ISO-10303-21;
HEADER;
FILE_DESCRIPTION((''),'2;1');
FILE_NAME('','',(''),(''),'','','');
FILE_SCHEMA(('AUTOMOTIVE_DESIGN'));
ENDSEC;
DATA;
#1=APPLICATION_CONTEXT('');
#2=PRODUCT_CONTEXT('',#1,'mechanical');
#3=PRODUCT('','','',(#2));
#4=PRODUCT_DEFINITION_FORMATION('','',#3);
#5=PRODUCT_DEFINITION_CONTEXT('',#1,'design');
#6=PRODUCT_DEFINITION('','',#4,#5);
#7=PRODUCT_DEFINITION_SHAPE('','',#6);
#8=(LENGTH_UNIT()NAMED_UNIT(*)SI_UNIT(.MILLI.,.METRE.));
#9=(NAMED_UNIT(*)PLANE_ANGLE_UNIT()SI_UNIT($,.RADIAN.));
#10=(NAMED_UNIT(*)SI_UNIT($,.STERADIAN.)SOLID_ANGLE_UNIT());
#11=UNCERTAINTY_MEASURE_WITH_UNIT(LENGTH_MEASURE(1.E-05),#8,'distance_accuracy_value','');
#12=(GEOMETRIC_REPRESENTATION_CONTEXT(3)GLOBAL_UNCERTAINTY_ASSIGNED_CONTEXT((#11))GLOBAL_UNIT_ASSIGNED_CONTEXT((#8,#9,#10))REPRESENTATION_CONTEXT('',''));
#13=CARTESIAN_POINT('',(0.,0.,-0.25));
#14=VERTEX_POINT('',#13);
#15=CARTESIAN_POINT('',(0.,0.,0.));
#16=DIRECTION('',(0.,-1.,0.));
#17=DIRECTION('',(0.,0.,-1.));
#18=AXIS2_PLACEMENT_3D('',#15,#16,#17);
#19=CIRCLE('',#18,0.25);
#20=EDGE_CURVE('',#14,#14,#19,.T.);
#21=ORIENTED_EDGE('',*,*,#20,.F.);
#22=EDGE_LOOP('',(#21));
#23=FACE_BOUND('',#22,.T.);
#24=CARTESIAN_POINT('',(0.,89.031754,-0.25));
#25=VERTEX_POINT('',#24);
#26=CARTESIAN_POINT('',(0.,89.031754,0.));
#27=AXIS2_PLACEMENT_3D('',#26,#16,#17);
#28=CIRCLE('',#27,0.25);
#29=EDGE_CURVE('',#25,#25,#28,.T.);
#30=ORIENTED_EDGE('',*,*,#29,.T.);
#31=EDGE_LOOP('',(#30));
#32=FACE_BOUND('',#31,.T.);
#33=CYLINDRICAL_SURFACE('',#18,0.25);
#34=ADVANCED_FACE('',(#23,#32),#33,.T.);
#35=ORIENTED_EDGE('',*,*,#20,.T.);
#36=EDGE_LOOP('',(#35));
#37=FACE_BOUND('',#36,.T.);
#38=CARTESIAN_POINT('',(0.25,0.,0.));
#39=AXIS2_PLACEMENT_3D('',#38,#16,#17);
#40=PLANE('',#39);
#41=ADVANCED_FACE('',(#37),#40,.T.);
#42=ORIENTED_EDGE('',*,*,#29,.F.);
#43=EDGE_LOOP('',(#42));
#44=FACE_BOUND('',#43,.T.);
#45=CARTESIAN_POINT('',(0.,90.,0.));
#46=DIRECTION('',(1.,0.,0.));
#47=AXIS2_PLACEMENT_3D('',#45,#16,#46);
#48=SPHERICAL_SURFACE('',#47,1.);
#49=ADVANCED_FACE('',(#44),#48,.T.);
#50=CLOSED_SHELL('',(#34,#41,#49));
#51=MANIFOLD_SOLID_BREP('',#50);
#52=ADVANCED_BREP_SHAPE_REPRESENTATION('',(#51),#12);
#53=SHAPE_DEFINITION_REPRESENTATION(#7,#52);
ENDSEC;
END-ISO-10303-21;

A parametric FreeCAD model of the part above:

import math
import FreeCAD as App
import Part
import Sketcher
from FreeCAD import Vector
Q = App.Units.Quantity

doc = App.newDocument("Part")
body = doc.addObject("PartDesign::Body", "Body")

# Sketch on XY plane
sketch1 = body.newObject("Sketcher::SketchObject", "Sketch")
sketch1.AttachmentSupport = (doc.getObject("XY_Plane"), [""])
sketch1.MapMode = "FlatFace"
sketch1.addGeometry([
    Part.LineSegment(Vector(0, 91, 0), Vector(0, 0, 0)),
    Part.LineSegment(Vector(0, 0, 0), Vector(0.25, 0, 0)),
    Part.LineSegment(Vector(0.25, 0, 0), Vector(0.25, 89.03, 0)),
    Part.ArcOfCircle(Part.Circle(Vector(0, 90, 0), Vector(0, 0, 1), 1), math.radians(-76), math.radians(90)),
], False)
sketch1.addConstraint([
    Sketcher.Constraint("Coincident", 0, 2, 1, 1),
    Sketcher.Constraint("Coincident", 1, 2, 2, 1),
    Sketcher.Constraint("Coincident", 2, 2, 3, 1),
    Sketcher.Constraint("Coincident", 3, 2, 0, 1),
    Sketcher.Constraint("Vertical", 0),
    Sketcher.Constraint("Horizontal", 1),
    Sketcher.Constraint("Vertical", 2),
    Sketcher.Constraint("Coincident", 0, 2, -1, 1),
    Sketcher.Constraint("PointOnObject", 3, 3, -2),
    Sketcher.Constraint("Radius", 3, Q("1 mm")),
    Sketcher.Constraint("DistanceY", 0, 2, 0, 1, Q("91 mm")),
    Sketcher.Constraint("DistanceX", 1, 1, 1, 2, Q("0.25 mm")),
])
revolution = body.newObject("PartDesign::Revolution", "Revolution")
revolution.Profile = sketch1
revolution.ReferenceAxis = (sketch1, ["V_Axis"])
revolution.Angle = 360

doc.recompute()
